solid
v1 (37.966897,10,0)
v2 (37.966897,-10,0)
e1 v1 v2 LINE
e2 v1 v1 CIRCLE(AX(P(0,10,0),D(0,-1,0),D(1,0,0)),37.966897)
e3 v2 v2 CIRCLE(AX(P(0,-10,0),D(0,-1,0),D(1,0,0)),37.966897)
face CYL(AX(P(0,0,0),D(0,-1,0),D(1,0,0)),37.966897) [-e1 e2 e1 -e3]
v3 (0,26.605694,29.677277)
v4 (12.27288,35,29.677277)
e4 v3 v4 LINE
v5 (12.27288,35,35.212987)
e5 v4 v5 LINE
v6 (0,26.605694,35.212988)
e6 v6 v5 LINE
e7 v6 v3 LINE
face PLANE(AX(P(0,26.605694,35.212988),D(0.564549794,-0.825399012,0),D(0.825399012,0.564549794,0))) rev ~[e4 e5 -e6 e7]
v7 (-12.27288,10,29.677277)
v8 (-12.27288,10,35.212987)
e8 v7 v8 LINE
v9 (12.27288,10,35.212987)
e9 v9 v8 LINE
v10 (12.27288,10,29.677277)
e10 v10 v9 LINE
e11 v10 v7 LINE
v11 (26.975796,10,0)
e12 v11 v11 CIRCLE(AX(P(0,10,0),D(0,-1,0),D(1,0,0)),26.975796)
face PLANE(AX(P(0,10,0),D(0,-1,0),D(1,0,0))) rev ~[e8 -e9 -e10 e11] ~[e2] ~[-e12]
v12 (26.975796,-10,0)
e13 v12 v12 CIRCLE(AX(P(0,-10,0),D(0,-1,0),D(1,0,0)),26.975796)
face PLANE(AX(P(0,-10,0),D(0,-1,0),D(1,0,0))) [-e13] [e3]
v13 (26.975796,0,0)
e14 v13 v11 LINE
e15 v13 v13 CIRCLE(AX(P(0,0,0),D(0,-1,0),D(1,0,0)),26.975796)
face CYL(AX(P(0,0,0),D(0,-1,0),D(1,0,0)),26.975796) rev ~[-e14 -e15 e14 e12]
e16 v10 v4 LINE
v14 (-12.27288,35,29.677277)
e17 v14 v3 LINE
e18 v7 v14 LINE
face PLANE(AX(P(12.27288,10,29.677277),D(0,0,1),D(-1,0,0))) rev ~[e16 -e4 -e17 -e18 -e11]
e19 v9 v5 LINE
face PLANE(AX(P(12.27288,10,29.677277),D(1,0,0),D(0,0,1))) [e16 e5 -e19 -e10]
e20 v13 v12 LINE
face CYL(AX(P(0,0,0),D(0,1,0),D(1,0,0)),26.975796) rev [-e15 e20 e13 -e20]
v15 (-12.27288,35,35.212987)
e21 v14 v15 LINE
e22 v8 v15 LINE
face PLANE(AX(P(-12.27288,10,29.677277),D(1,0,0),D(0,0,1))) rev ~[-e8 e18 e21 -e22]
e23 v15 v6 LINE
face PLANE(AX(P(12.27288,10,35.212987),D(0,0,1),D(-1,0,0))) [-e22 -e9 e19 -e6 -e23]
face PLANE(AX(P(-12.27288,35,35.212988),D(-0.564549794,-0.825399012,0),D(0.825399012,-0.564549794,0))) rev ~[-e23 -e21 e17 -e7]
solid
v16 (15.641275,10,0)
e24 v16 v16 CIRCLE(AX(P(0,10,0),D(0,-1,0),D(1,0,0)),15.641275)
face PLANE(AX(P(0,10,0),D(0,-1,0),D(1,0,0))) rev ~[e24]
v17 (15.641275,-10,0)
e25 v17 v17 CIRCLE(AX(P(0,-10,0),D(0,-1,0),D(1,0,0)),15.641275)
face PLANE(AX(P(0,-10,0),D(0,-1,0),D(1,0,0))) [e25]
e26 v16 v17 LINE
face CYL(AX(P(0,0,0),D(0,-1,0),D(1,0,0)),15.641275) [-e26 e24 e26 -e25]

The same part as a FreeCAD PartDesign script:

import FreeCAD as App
import Part
import Sketcher

V = App.Vector

doc = App.newDocument("Part")
body = doc.addObject("PartDesign::Body", "Body")
body.AllowCompound = True

# Sketch on XZ plane
sketch1 = doc.addObject("Sketcher::SketchObject", "Sketch")
body.addObject(sketch1)
sketch1.AttachmentSupport = (doc.XZ_Plane, [""])
sketch1.MapMode = "FlatFace"
sketch1.addGeometry(Part.Circle(V(0, 0, 0), V(0, 0, 1), 38), False)
sketch1.addGeometry(Part.Circle(V(0, 0, 0), V(0, 0, 1), 27), False)
sketch1.addGeometry(Part.Circle(V(0, 0, 0), V(0, 0, 1), 16), False)
sketch1.addConstraint(Sketcher.Constraint("Coincident", 0, 3, -1, 1))
sketch1.addConstraint(Sketcher.Constraint("Coincident", 1, 3, -1, 1))
sketch1.addConstraint(Sketcher.Constraint("Coincident", 2, 3, -1, 1))
sketch1.addConstraint(Sketcher.Constraint("Diameter", 1, 53.951592))
sketch1.addConstraint(Sketcher.Constraint("Diameter", 2, 31.28255))
sketch1.addConstraint(Sketcher.Constraint("Diameter", 0, 75.933794))
pad1 = doc.addObject("PartDesign::Pad", "Pad")
body.addObject(pad1)
pad1.Profile = sketch1
pad1.Type = "TwoLengths"
pad1.Length = 10
pad1.Length2 = 10

# Sketch on XZ plane
sketch2 = doc.addObject("Sketcher::SketchObject", "Sketch001")
body.addObject(sketch2)
sketch2.AttachmentSupport = (doc.XZ_Plane, [""])
sketch2.MapMode = "FlatFace"
sketch2.AttachmentOffset = App.Placement(V(0, 0, -10), App.Rotation())
sketch2.addGeometry(Part.LineSegment(V(12, 35, 0), V(12, 30, 0)), False)
sketch2.addGeometry(Part.LineSegment(V(12, 30, 0), V(-12, 30, 0)), False)
sketch2.addGeometry(Part.LineSegment(V(-12, 30, 0), V(-12, 35, 0)), False)
sketch2.addGeometry(Part.LineSegment(V(-12, 35, 0), V(12, 35, 0)), False)
sketch2.addConstraint(Sketcher.Constraint("Coincident", 0, 2, 1, 1))
sketch2.addConstraint(Sketcher.Constraint("Coincident", 1, 2, 2, 1))
sketch2.addConstraint(Sketcher.Constraint("Coincident", 2, 2, 3, 1))
sketch2.addConstraint(Sketcher.Constraint("Coincident", 3, 2, 0, 1))
sketch2.addConstraint(Sketcher.Constraint("Vertical", 0))
sketch2.addConstraint(Sketcher.Constraint("Horizontal", 1))
sketch2.addConstraint(Sketcher.Constraint("Vertical", 2))
sketch2.addConstraint(Sketcher.Constraint("Horizontal", 3))
sketch2.addConstraint(Sketcher.Constraint("DistanceX", 1, 2, 1, 1, 24.54576))
sketch2.addConstraint(Sketcher.Constraint("DistanceY", 0, 2, 0, 1, 5.535711))
sketch2.addConstraint(Sketcher.Constraint("DistanceX", -1, 1, 0, 2, 12.27288))
sketch2.addConstraint(Sketcher.Constraint("DistanceY", -1, 1, 0, 2, 29.677277))
pad2 = doc.addObject("PartDesign::Pad", "Pad001")
body.addObject(pad2)
pad2.Profile = sketch2
pad2.Length = 25
pad2.Reversed = True

# Sketch on XY plane
sketch3 = doc.addObject("Sketcher::SketchObject", "Sketch002")
body.addObject(sketch3)
sketch3.AttachmentSupport = (doc.XY_Plane, [""])
sketch3.MapMode = "FlatFace"
sketch3.AttachmentOffset = App.Placement(V(0, 0, 35.212988), App.Rotation())
sketch3.addGeometry(Part.LineSegment(V(12, 35, 0), V(-12, 35, 0)), False)
sketch3.addGeometry(Part.LineSegment(V(-12, 35, 0), V(0, 27, 0)), False)
sketch3.addGeometry(Part.LineSegment(V(0, 27, 0), V(12, 35, 0)), False)
sketch3.addConstraint(Sketcher.Constraint("Coincident", 0, 2, 1, 1))
sketch3.addConstraint(Sketcher.Constraint("Coincident", 1, 2, 2, 1))
sketch3.addConstraint(Sketcher.Constraint("Coincident", 2, 2, 0, 1))
sketch3.addConstraint(Sketcher.Constraint("Horizontal", 0))
sketch3.addConstraint(Sketcher.Constraint("PointOnObject", 1, 2, -2))
sketch3.addConstraint(Sketcher.Constraint("Equal", 1, 2))
sketch3.addConstraint(Sketcher.Constraint("DistanceY", -1, 1, 0, 2, 35.0))
sketch3.addConstraint(Sketcher.Constraint("DistanceX", 0, 2, 0, 1, 24.54576))
sketch3.addConstraint(Sketcher.Constraint("Distance", 1, 14.869027))
pocket1 = doc.addObject("PartDesign::Pocket", "Pocket")
body.addObject(pocket1)
pocket1.Profile = sketch3
pocket1.Length = 25

doc.recompute()
